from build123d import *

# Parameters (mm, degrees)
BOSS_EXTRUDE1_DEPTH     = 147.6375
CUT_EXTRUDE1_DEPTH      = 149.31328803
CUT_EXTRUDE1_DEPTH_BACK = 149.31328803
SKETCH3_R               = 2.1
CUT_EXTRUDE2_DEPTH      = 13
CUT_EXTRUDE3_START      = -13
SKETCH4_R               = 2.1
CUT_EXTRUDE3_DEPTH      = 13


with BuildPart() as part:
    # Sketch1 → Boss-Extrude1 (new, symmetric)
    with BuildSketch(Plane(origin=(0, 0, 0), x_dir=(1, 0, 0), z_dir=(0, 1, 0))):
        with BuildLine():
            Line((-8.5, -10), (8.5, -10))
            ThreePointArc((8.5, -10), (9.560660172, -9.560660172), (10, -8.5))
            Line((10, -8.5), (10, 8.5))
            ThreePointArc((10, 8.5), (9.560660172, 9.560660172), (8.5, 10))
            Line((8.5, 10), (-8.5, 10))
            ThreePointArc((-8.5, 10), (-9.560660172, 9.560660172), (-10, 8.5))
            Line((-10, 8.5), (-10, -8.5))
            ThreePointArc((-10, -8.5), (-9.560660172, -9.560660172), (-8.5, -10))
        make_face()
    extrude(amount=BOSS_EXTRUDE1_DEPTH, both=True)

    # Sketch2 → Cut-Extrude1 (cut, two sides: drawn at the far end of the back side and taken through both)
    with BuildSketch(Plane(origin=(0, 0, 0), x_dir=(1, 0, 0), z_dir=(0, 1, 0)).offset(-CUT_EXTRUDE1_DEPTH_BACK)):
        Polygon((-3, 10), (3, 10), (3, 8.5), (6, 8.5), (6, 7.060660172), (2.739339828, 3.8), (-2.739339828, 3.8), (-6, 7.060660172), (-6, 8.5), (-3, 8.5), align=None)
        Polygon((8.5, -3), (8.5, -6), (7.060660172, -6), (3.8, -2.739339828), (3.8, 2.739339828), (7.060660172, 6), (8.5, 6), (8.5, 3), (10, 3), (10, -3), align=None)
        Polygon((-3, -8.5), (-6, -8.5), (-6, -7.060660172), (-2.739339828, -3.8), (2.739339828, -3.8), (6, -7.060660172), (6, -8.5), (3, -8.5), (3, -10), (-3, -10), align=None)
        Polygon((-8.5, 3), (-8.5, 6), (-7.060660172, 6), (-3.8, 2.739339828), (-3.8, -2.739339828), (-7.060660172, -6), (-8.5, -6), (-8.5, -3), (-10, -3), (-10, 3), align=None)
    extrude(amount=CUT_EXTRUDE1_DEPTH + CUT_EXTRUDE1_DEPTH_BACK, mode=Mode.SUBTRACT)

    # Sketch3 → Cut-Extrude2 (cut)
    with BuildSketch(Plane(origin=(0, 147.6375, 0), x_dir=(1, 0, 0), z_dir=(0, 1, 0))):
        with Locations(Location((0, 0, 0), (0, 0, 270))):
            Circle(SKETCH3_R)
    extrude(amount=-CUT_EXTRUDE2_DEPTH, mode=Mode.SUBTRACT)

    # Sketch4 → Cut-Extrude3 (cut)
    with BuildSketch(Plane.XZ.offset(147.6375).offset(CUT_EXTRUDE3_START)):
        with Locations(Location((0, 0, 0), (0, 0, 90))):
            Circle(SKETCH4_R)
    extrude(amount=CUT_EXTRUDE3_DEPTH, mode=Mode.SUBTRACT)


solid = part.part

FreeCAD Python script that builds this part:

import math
import FreeCAD as App
import Part
import Sketcher
from FreeCAD import Vector
Q = App.Units.Quantity

doc = App.newDocument("Part")
params = doc.addObject("Spreadsheet::Sheet", "Params")
for row, (alias, value) in enumerate([
    ("sketch1_radius", "1.5 mm"),
    ("sketch1_width", "17 mm"),
    ("pad1_length", "295.275 mm"),
    ("sketch2_width", "6 mm"),
    ("sketch2_width2", "3 mm"),
    ("sketch2_width3", "1.5 mm"),
    ("sketch3_diameter", "4.2 mm"),
    ("pocket2_length", "13 mm"),
    ("sketch4_diameter", "4.2 mm"),
    ("pocket3_length", "13 mm"),
], start=1):
    params.set(f"A{row}", alias)
    params.set(f"B{row}", "=" + value)
    params.setAlias(f"B{row}", alias)

body = doc.addObject("PartDesign::Body", "Body")

# Sketch on XZ plane
sketch1 = doc.addObject("Sketcher::SketchObject", "Sketch")
body.addObject(sketch1)
sketch1.AttachmentSupport = (doc.XZ_Plane, [""])
sketch1.MapMode = "FlatFace"
sketch1.addGeometry(Part.LineSegment(Vector(-8.5, 10, 0), Vector(8.5, 10, 0)), False)
sketch1.addGeometry(Part.ArcOfCircle(Part.Circle(Vector(8.5, 8.5, 0), Vector(0, 0, 1), 1.5), math.radians(0), math.radians(90)), False)
sketch1.addGeometry(Part.LineSegment(Vector(10, 8.5, 0), Vector(10, -8.5, 0)), False)
sketch1.addGeometry(Part.ArcOfCircle(Part.Circle(Vector(8.5, -8.5, 0), Vector(0, 0, 1), 1.5), math.radians(-90), math.radians(0)), False)
sketch1.addGeometry(Part.LineSegment(Vector(8.5, -10, 0), Vector(-8.5, -10, 0)), False)
sketch1.addGeometry(Part.ArcOfCircle(Part.Circle(Vector(-8.5, -8.5, 0), Vector(0, 0, 1), 1.5), math.radians(180), math.radians(270)), False)
sketch1.addGeometry(Part.LineSegment(Vector(-10, -8.5, 0), Vector(-10, 8.5, 0)), False)
sketch1.addGeometry(Part.ArcOfCircle(Part.Circle(Vector(-8.5, 8.5, 0), Vector(0, 0, 1), 1.5), math.radians(90), math.radians(180)), False)
sketch1.addConstraint(Sketcher.Constraint("Tangent", 0, 2, 1, 2))
sketch1.addConstraint(Sketcher.Constraint("Tangent", 1, 1, 2, 1))
sketch1.addConstraint(Sketcher.Constraint("Tangent", 2, 2, 3, 2))
sketch1.addConstraint(Sketcher.Constraint("Tangent", 3, 1, 4, 1))
sketch1.addConstraint(Sketcher.Constraint("Tangent", 4, 2, 5, 2))
sketch1.addConstraint(Sketcher.Constraint("Tangent", 5, 1, 6, 1))
sketch1.addConstraint(Sketcher.Constraint("Tangent", 6, 2, 7, 2))
sketch1.addConstraint(Sketcher.Constraint("Tangent", 7, 1, 0, 1))
sketch1.addConstraint(Sketcher.Constraint("Horizontal", 0))
sketch1.addConstraint(Sketcher.Constraint("Vertical", 2))
sketch1.addConstraint(Sketcher.Constraint("Horizontal", 4))
sketch1.addConstraint(Sketcher.Constraint("Vertical", 6))
sketch1.addConstraint(Sketcher.Constraint("Equal", 1, 3))
sketch1.addConstraint(Sketcher.Constraint("Equal", 3, 5))
sketch1.addConstraint(Sketcher.Constraint("Equal", 5, 7))
sketch1.addConstraint(Sketcher.Constraint("Symmetric", 1, 3, 5, 3, -1, 1))
sketch1.addConstraint(Sketcher.Constraint("Equal", 4, 2))
sketch1.addConstraint(Sketcher.Constraint("Radius", 1, Q("1.5 mm")))
sketch1.addConstraint(Sketcher.Constraint("DistanceX", 0, 1, 0, 2, Q("17 mm")))
sketch1.setExpression("Constraints[17]", "Params.sketch1_radius")
sketch1.setExpression("Constraints[18]", "Params.sketch1_width")
pad1 = doc.addObject("PartDesign::Pad", "Pad")
body.addObject(pad1)
pad1.Profile = sketch1
pad1.setExpression("Length", "Params.pad1_length")
pad1.Midplane = True

# Sketch on XZ plane
sketch2 = doc.addObject("Sketcher::SketchObject", "Sketch001")
body.addObject(sketch2)
sketch2.AttachmentSupport = (doc.XZ_Plane, [""])
sketch2.MapMode = "FlatFace"
sketch2.addGeometry(Part.LineSegment(Vector(3, -10, 0), Vector(-3, -10, 0)), False)
sketch2.addGeometry(Part.LineSegment(Vector(-3, -10, 0), Vector(-3, -8.5, 0)), False)
sketch2.addGeometry(Part.LineSegment(Vector(-3, -8.5, 0), Vector(-6, -8.5, 0)), False)
sketch2.addGeometry(Part.LineSegment(Vector(-6, -8.5, 0), Vector(-6, -7.06066, 0)), False)
sketch2.addGeometry(Part.LineSegment(Vector(-6, -7.06066, 0), Vector(-2.73934, -3.8, 0)), False)
sketch2.addGeometry(Part.LineSegment(Vector(-2.73934, -3.8, 0), Vector(2.73934, -3.8, 0)), False)
sketch2.addGeometry(Part.LineSegment(Vector(2.73934, -3.8, 0), Vector(6, -7.06066, 0)), False)
sketch2.addGeometry(Part.LineSegment(Vector(6, -7.06066, 0), Vector(6, -8.5, 0)), False)
sketch2.addGeometry(Part.LineSegment(Vector(6, -8.5, 0), Vector(3, -8.5, 0)), False)
sketch2.addGeometry(Part.LineSegment(Vector(3, -8.5, 0), Vector(3, -10, 0)), False)
sketch2.addGeometry(Part.LineSegment(Vector(8.5, 6, 0), Vector(8.5, 3, 0)), False)
sketch2.addGeometry(Part.LineSegment(Vector(8.5, 3, 0), Vector(10, 3, 0)), False)
sketch2.addGeometry(Part.LineSegment(Vector(10, 3, 0), Vector(10, -3, 0)), False)
sketch2.addGeometry(Part.LineSegment(Vector(10, -3, 0), Vector(8.5, -3, 0)), False)
sketch2.addGeometry(Part.LineSegment(Vector(8.5, -3, 0), Vector(8.5, -6, 0)), False)
sketch2.addGeometry(Part.LineSegment(Vector(8.5, -6, 0), Vector(7.06066, -6, 0)), False)
sketch2.addGeometry(Part.LineSegment(Vector(7.06066, -6, 0), Vector(3.8, -2.73934, 0)), False)
sketch2.addGeometry(Part.LineSegment(Vector(3.8, -2.73934, 0), Vector(3.8, 2.73934, 0)), False)
sketch2.addGeometry(Part.LineSegment(Vector(3.8, 2.73934, 0), Vector(7.06066, 6, 0)), False)
sketch2.addGeometry(Part.LineSegment(Vector(7.06066, 6, 0), Vector(8.5, 6, 0)), False)
sketch2.addGeometry(Part.LineSegment(Vector(-6, 8.5, 0), Vector(-3, 8.5, 0)), False)
sketch2.addGeometry(Part.LineSegment(Vector(-3, 8.5, 0), Vector(-3, 10, 0)), False)
sketch2.addGeometry(Part.LineSegment(Vector(-3, 10, 0), Vector(3, 10, 0)), False)
sketch2.addGeometry(Part.LineSegment(Vector(3, 10, 0), Vector(3, 8.5, 0)), False)
sketch2.addGeometry(Part.LineSegment(Vector(3, 8.5, 0), Vector(6, 8.5, 0)), False)
sketch2.addGeometry(Part.LineSegment(Vector(6, 8.5, 0), Vector(6, 7.06066, 0)), False)
sketch2.addGeometry(Part.LineSegment(Vector(6, 7.06066, 0), Vector(2.73934, 3.8, 0)), False)
sketch2.addGeometry(Part.LineSegment(Vector(2.73934, 3.8, 0), Vector(-2.73934, 3.8, 0)), False)
sketch2.addGeometry(Part.LineSegment(Vector(-2.73934, 3.8, 0), Vector(-6, 7.06066, 0)), False)
sketch2.addGeometry(Part.LineSegment(Vector(-6, 7.06066, 0), Vector(-6, 8.5, 0)), False)
sketch2.addGeometry(Part.LineSegment(Vector(-8.5, -6, 0), Vector(-8.5, -3, 0)), False)
sketch2.addGeometry(Part.LineSegment(Vector(-8.5, -3, 0), Vector(-10, -3, 0)), False)
sketch2.addGeometry(Part.LineSegment(Vector(-10, -3, 0), Vector(-10, 3, 0)), False)
sketch2.addGeometry(Part.LineSegment(Vector(-10, 3, 0), Vector(-8.5, 3, 0)), False)
sketch2.addGeometry(Part.LineSegment(Vector(-8.5, 3, 0), Vector(-8.5, 6, 0)), False)
sketch2.addGeometry(Part.LineSegment(Vector(-8.5, 6, 0), Vector(-7.06066, 6, 0)), False)
sketch2.addGeometry(Part.LineSegment(Vector(-7.06066, 6, 0), Vector(-3.8, 2.73934, 0)), False)
sketch2.addGeometry(Part.LineSegment(Vector(-3.8, 2.73934, 0), Vector(-3.8, -2.73934, 0)), False)
sketch2.addGeometry(Part.LineSegment(Vector(-3.8, -2.73934, 0), Vector(-7.06066, -6, 0)), False)
sketch2.addGeometry(Part.LineSegment(Vector(-7.06066, -6, 0), Vector(-8.5, -6, 0)), False)
sketch2.addConstraint(Sketcher.Constraint("Coincident", 0, 2, 1, 1))
sketch2.addConstraint(Sketcher.Constraint("Coincident", 1, 2, 2, 1))
sketch2.addConstraint(Sketcher.Constraint("Coincident", 2, 2, 3, 1))
sketch2.addConstraint(Sketcher.Constraint("Coincident", 3, 2, 4, 1))
sketch2.addConstraint(Sketcher.Constraint("Coincident", 4, 2, 5, 1))
sketch2.addConstraint(Sketcher.Constraint("Coincident", 5, 2, 6, 1))
sketch2.addConstraint(Sketcher.Constraint("Coincident", 6, 2, 7, 1))
sketch2.addConstraint(Sketcher.Constraint("Coincident", 7, 2, 8, 1))
sketch2.addConstraint(Sketcher.Constraint("Coincident", 8, 2, 9, 1))
sketch2.addConstraint(Sketcher.Constraint("Coincident", 9, 2, 0, 1))
sketch2.addConstraint(Sketcher.Constraint("Coincident", 10, 2, 11, 1))
sketch2.addConstraint(Sketcher.Constraint("Coincident", 11, 2, 12, 1))
sketch2.addConstraint(Sketcher.Constraint("Coincident", 12, 2, 13, 1))
sketch2.addConstraint(Sketcher.Constraint("Coincident", 13, 2, 14, 1))
sketch2.addConstraint(Sketcher.Constraint("Coincident", 14, 2, 15, 1))
sketch2.addConstraint(Sketcher.Constraint("Coincident", 15, 2, 16, 1))
sketch2.addConstraint(Sketcher.Constraint("Coincident", 16, 2, 17, 1))
sketch2.addConstraint(Sketcher.Constraint("Coincident", 17, 2, 18, 1))
sketch2.addConstraint(Sketcher.Constraint("Coincident", 18, 2, 19, 1))
sketch2.addConstraint(Sketcher.Constraint("Coincident", 19, 2, 10, 1))
sketch2.addConstraint(Sketcher.Constraint("Coincident", 20, 2, 21, 1))
sketch2.addConstraint(Sketcher.Constraint("Coincident", 21, 2, 22, 1))
sketch2.addConstraint(Sketcher.Constraint("Coincident", 22, 2, 23, 1))
sketch2.addConstraint(Sketcher.Constraint("Coincident", 23, 2, 24, 1))
sketch2.addConstraint(Sketcher.Constraint("Coincident", 24, 2, 25, 1))
sketch2.addConstraint(Sketcher.Constraint("Coincident", 25, 2, 26, 1))
sketch2.addConstraint(Sketcher.Constraint("Coincident", 26, 2, 27, 1))
sketch2.addConstraint(Sketcher.Constraint("Coincident", 27, 2, 28, 1))
sketch2.addConstraint(Sketcher.Constraint("Coincident", 28, 2, 29, 1))
sketch2.addConstraint(Sketcher.Constraint("Coincident", 29, 2, 20, 1))
sketch2.addConstraint(Sketcher.Constraint("Coincident", 30, 2, 31, 1))
sketch2.addConstraint(Sketcher.Constraint("Coincident", 31, 2, 32, 1))
sketch2.addConstraint(Sketcher.Constraint("Coincident", 32, 2, 33, 1))
sketch2.addConstraint(Sketcher.Constraint("Coincident", 33, 2, 34, 1))
sketch2.addConstraint(Sketcher.Constraint("Coincident", 34, 2, 35, 1))
sketch2.addConstraint(Sketcher.Constraint("Coincident", 35, 2, 36, 1))
sketch2.addConstraint(Sketcher.Constraint("Coincident", 36, 2, 37, 1))
sketch2.addConstraint(Sketcher.Constraint("Coincident", 37, 2, 38, 1))
sketch2.addConstraint(Sketcher.Constraint("Coincident", 38, 2, 39, 1))
sketch2.addConstraint(Sketcher.Constraint("Coincident", 39, 2, 30, 1))
sketch2.addConstraint(Sketcher.Constraint("Horizontal", 0))
sketch2.addConstraint(Sketcher.Constraint("Vertical", 1))
sketch2.addConstraint(Sketcher.Constraint("Horizontal", 2))
sketch2.addConstraint(Sketcher.Constraint("Vertical", 3))
sketch2.addConstraint(Sketcher.Constraint("Horizontal", 5))
sketch2.addConstraint(Sketcher.Constraint("Vertical", 7))
sketch2.addConstraint(Sketcher.Constraint("Horizontal", 8))
sketch2.addConstraint(Sketcher.Constraint("Vertical", 9))
sketch2.addConstraint(Sketcher.Constraint("Vertical", 10))
sketch2.addConstraint(Sketcher.Constraint("Horizontal", 11))
sketch2.addConstraint(Sketcher.Constraint("Vertical", 12))
sketch2.addConstraint(Sketcher.Constraint("Horizontal", 13))
sketch2.addConstraint(Sketcher.Constraint("Vertical", 14))
sketch2.addConstraint(Sketcher.Constraint("Horizontal", 15))
sketch2.addConstraint(Sketcher.Constraint("Vertical", 17))
sketch2.addConstraint(Sketcher.Constraint("Horizontal", 19))
sketch2.addConstraint(Sketcher.Constraint("Horizontal", 20))
sketch2.addConstraint(Sketcher.Constraint("Vertical", 21))
sketch2.addConstraint(Sketcher.Constraint("Horizontal", 22))
sketch2.addConstraint(Sketcher.Constraint("Vertical", 23))
sketch2.addConstraint(Sketcher.Constraint("Horizontal", 24))
sketch2.addConstraint(Sketcher.Constraint("Vertical", 25))
sketch2.addConstraint(Sketcher.Constraint("Horizontal", 27))
sketch2.addConstraint(Sketcher.Constraint("Vertical", 29))
sketch2.addConstraint(Sketcher.Constraint("Vertical", 30))
sketch2.addConstraint(Sketcher.Constraint("Horizontal", 31))
sketch2.addConstraint(Sketcher.Constraint("Vertical", 32))
sketch2.addConstraint(Sketcher.Constraint("Horizontal", 33))
sketch2.addConstraint(Sketcher.Constraint("Vertical", 34))
sketch2.addConstraint(Sketcher.Constraint("Horizontal", 35))
sketch2.addConstraint(Sketcher.Constraint("Vertical", 37))
sketch2.addConstraint(Sketcher.Constraint("Horizontal", 39))
sketch2.addConstraint(Sketcher.Constraint("Symmetric", 8, 2, 20, 2, -1, 1))
sketch2.addConstraint(Sketcher.Constraint("Symmetric", 0, 2, 22, 2, -1, 1))
sketch2.addConstraint(Sketcher.Constraint("Symmetric", 2, 2, 24, 2, -1, 1))
sketch2.addConstraint(Sketcher.Constraint("Symmetric", 4, 2, 26, 2, -1, 1))
sketch2.addConstraint(Sketcher.Constraint("Symmetric", 6, 2, 28, 2, -1, 1))
sketch2.addConstraint(Sketcher.Constraint("Symmetric", 10, 2, 30, 2, -1, 1))
sketch2.addConstraint(Sketcher.Constraint("Symmetric", 12, 2, 32, 2, -1, 1))
sketch2.addConstraint(Sketcher.Constraint("Symmetric", 14, 2, 34, 2, -1, 1))
sketch2.addConstraint(Sketcher.Constraint("Symmetric", 16, 2, 36, 2, -1, 1))
sketch2.addConstraint(Sketcher.Constraint("Symmetric", 18, 2, 38, 2, -1, 1))
sketch2.addConstraint(Sketcher.Constraint("Symmetric", 3, 2, 6, 2, -2))
sketch2.addConstraint(Sketcher.Constraint("Symmetric", 1, 2, 8, 2, -2))
sketch2.addConstraint(Sketcher.Constraint("Symmetric", 13, 2, 30, 2, -2))
sketch2.addConstraint(Sketcher.Constraint("Symmetric", 18, 2, 35, 2, -2))
sketch2.addConstraint(Sketcher.Constraint("Perpendicular", 4, 6))
sketch2.addConstraint(Sketcher.Constraint("Parallel", 6, 16))
sketch2.addConstraint(Sketcher.Constraint("Perpendicular", 16, 18))
sketch2.addConstraint(Sketcher.Constraint("Parallel", 18, 26))
sketch2.addConstraint(Sketcher.Constraint("Perpendicular", 26, 28))
sketch2.addConstraint(Sketcher.Constraint("Parallel", 28, 36))
sketch2.addConstraint(Sketcher.Constraint("Perpendicular", 36, 38))
sketch2.addConstraint(Sketcher.Constraint("Horizontal", 17, 2, 36, 2))
sketch2.addConstraint(Sketcher.Constraint("Equal", 33, 1))
sketch2.addConstraint(Sketcher.Constraint("Equal", 39, 3))
sketch2.addConstraint(Sketcher.Constraint("Equal", 24, 10))
sketch2.addConstraint(Sketcher.Constraint("Equal", 22, 12))
sketch2.addConstraint(Sketcher.Constraint("Equal", 27, 17))
sketch2.addConstraint(Sketcher.Constraint("DistanceX", 0, 2, 0, 1, Q("6 mm")))
sketch2.addConstraint(Sketcher.Constraint("DistanceX", 2, 2, 2, 1, Q("3 mm")))
sketch2.addConstraint(Sketcher.Constraint("DistanceX", 11, 1, 11, 2, Q("1.5 mm")))
sketch2.addConstraint(Sketcher.Constraint("DistanceY", 0, 2, -1, 1, Q("10 mm")))
sketch2.addConstraint(Sketcher.Constraint("DistanceX", -1, 1, 11, 2, Q("10 mm")))
sketch2.addConstraint(Sketcher.Constraint("DistanceY", 4, 2, -1, 1, Q("3.8 mm")))
sketch2.addConstraint(Sketcher.Constraint("DistanceX", 5, 1, 5, 2, Q("5.47868 mm")))
sketch2.setExpression("Constraints[99]", "Params.sketch2_width")
sketch2.setExpression("Constraints[100]", "Params.sketch2_width2")
sketch2.setExpression("Constraints[101]", "Params.sketch2_width3")
pocket1 = doc.addObject("PartDesign::Pocket", "Pocket")
body.addObject(pocket1)
pocket1.Profile = sketch2
pocket1.Type = "ThroughAll"
pocket1.Midplane = True

# Sketch on XZ plane
sketch3 = doc.addObject("Sketcher::SketchObject", "Sketch002")
body.addObject(sketch3)
sketch3.AttachmentSupport = (doc.XZ_Plane, [""])
sketch3.MapMode = "FlatFace"
sketch3.AttachmentOffset = App.Placement(Vector(0, 0, -147.6375), App.Rotation())
sketch3.addGeometry(Part.Circle(Vector(0, 0, 0), Vector(0, 0, 1), 2.1), False)
sketch3.addConstraint(Sketcher.Constraint("Coincident", 0, 3, -1, 1))
sketch3.addConstraint(Sketcher.Constraint("Diameter", 0, Q("4.2 mm")))
sketch3.setExpression("Constraints[1]", "Params.sketch3_diameter")
pocket2 = doc.addObject("PartDesign::Pocket", "Pocket001")
body.addObject(pocket2)
pocket2.Profile = sketch3
pocket2.setExpression("Length", "Params.pocket2_length")
pocket2.Reversed = True

# Sketch on XZ plane
sketch4 = doc.addObject("Sketcher::SketchObject", "Sketch003")
body.addObject(sketch4)
sketch4.AttachmentSupport = (doc.XZ_Plane, [""])
sketch4.MapMode = "FlatFace"
sketch4.AttachmentOffset = App.Placement(Vector(0, 0, 134.6375), App.Rotation())
sketch4.addGeometry(Part.Circle(Vector(0, 0, 0), Vector(0, 0, 1), 2.1), False)
sketch4.addConstraint(Sketcher.Constraint("Coincident", 0, 3, -1, 1))
sketch4.addConstraint(Sketcher.Constraint("Diameter", 0, Q("4.2 mm")))
sketch4.setExpression("Constraints[1]", "Params.sketch4_diameter")
pocket3 = doc.addObject("PartDesign::Pocket", "Pocket002")
body.addObject(pocket3)
pocket3.Profile = sketch4
pocket3.setExpression("Length", "Params.pocket3_length")
pocket3.Reversed = True

doc.recompute()
